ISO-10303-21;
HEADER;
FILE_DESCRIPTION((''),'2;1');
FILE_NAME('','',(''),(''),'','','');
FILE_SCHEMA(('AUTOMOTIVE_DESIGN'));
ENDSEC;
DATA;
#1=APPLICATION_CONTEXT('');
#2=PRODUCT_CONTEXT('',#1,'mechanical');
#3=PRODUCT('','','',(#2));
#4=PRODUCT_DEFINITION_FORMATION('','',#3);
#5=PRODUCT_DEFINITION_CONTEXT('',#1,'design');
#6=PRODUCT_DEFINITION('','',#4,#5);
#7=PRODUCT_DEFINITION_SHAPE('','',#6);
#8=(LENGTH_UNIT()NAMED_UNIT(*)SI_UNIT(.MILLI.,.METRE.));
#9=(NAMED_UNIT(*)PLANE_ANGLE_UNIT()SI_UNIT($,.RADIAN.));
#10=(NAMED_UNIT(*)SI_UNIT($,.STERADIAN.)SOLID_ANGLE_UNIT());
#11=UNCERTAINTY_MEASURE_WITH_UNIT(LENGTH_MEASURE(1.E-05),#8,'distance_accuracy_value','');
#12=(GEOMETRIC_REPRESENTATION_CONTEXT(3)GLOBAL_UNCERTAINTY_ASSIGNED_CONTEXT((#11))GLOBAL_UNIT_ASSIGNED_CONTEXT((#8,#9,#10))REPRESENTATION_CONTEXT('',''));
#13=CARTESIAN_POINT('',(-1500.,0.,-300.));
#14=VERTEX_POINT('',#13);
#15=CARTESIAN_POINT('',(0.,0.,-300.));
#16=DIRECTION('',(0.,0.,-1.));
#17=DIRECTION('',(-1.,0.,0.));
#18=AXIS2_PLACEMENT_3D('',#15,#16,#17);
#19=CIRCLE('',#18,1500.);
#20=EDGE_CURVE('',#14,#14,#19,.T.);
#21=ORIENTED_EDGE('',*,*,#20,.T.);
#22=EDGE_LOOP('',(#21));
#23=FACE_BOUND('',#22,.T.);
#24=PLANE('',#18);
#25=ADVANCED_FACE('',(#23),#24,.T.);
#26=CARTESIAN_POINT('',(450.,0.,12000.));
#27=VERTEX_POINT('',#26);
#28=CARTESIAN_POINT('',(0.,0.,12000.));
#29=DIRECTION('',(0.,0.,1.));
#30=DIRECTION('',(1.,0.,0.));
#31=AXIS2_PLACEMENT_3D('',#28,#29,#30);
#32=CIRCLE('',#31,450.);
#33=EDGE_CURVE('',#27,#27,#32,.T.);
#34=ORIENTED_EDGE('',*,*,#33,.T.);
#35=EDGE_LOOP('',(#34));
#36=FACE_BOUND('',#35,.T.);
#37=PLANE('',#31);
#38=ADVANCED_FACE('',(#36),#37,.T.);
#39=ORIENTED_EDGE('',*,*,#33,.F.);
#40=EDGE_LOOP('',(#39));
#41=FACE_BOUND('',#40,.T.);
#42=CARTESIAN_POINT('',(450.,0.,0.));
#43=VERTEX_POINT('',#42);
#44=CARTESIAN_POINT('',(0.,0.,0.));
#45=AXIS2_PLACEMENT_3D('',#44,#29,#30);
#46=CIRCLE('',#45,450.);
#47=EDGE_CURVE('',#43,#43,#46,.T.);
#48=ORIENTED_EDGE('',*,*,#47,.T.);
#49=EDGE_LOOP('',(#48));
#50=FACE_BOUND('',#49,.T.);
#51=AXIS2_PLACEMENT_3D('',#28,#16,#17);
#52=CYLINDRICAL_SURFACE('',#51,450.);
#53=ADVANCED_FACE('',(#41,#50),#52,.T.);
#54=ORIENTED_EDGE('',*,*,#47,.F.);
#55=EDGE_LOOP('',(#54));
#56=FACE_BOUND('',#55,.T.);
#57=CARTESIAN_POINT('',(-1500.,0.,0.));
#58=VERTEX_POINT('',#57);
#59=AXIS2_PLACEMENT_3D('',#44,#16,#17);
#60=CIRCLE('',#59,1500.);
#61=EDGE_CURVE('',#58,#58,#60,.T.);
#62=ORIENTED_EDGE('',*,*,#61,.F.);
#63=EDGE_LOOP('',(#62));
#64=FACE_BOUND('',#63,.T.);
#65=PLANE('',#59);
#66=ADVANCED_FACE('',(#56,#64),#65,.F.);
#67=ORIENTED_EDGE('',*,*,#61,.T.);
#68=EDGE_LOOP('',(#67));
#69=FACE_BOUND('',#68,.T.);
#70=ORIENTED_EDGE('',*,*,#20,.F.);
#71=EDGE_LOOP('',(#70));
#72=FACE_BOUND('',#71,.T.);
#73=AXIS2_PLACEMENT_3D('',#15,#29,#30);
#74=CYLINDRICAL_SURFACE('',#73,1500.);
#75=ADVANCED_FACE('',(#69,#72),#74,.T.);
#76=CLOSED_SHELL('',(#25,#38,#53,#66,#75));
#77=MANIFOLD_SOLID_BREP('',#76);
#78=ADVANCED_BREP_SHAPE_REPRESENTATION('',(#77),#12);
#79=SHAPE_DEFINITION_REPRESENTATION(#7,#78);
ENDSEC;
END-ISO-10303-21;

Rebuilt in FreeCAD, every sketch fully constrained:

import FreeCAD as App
import Part
import Sketcher
Q = App.Units.Quantity

doc = App.newDocument("Part")
body = doc.addObject("PartDesign::Body", "Body")

sketch1 = doc.addObject("Sketcher::SketchObject", "Sketch")
body.addObject(sketch1)
sketch1.AttachmentSupport = (doc.XY_Plane, [""])
sketch1.MapMode = "FlatFace"
sketch1.addGeometry(Part.Circle(App.Vector(0, 0, 0), App.Vector(0, 0, 1), 450), False)
sketch1.addConstraint(Sketcher.Constraint("Coincident", 0, 3, -1, 1))
sketch1.addConstraint(Sketcher.Constraint("Diameter", 0, Q("900 mm")))
pad1 = doc.addObject("PartDesign::Pad", "Pad")
body.addObject(pad1)
pad1.Profile = sketch1
pad1.Length = 12000

sketch2 = doc.addObject("Sketcher::SketchObject", "Sketch001")
body.addObject(sketch2)
sketch2.AttachmentSupport = (doc.XY_Plane, [""])
sketch2.MapMode = "FlatFace"
sketch2.addGeometry(Part.Circle(App.Vector(0, 0, 0), App.Vector(0, 0, 1), 1500), False)
sketch2.addConstraint(Sketcher.Constraint("Coincident", 0, 3, -1, 1))
sketch2.addConstraint(Sketcher.Constraint("Diameter", 0, Q("3000 mm")))
pad2 = doc.addObject("PartDesign::Pad", "Pad001")
body.addObject(pad2)
pad2.Profile = sketch2
pad2.Length = 300
pad2.Reversed = True

doc.recompute()
